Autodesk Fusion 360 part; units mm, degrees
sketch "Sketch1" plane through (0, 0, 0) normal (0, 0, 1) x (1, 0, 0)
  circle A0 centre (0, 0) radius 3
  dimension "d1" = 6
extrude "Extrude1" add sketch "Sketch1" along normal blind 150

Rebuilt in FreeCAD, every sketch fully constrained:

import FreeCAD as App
import Part
import Sketcher

V = App.Vector

doc = App.newDocument("Part")
body = doc.addObject("PartDesign::Body", "Body")

# Sketch on XY plane
sketch1 = doc.addObject("Sketcher::SketchObject", "Sketch")
body.addObject(sketch1)
sketch1.AttachmentSupport = (doc.XY_Plane, [""])
sketch1.MapMode = "FlatFace"
sketch1.addGeometry(Part.Circle(V(0, 0, 0), V(0, 0, 1), 3), False)
sketch1.addConstraint(Sketcher.Constraint("Coincident", 0, 3, -1, 1))
sketch1.addConstraint(Sketcher.Constraint("Diameter", 0, 6.0))
pad1 = doc.addObject("PartDesign::Pad", "Pad")
body.addObject(pad1)
pad1.Profile = sketch1
pad1.Length = 150

doc.recompute()
